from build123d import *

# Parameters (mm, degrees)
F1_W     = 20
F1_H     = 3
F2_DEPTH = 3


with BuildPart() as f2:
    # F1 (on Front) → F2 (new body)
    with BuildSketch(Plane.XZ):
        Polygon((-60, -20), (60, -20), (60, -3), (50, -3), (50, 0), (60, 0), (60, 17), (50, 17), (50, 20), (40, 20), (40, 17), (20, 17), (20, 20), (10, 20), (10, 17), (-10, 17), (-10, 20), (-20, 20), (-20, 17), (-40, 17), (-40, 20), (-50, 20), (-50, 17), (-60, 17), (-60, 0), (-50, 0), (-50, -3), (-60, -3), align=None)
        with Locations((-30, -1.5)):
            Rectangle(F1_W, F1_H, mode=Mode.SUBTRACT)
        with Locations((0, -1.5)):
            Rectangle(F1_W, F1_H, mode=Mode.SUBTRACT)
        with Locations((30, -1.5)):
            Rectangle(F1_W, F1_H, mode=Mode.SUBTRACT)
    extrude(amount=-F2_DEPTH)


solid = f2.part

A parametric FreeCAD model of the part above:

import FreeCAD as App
import Part
import Sketcher

V = App.Vector


def add_polygon(sketch, points):
    """Adds a closed chain of lines whose ends are joined by coincident constraints."""
    first, n = sketch.GeometryCount, len(points)
    for a, b in zip(points, points[1:] + points[:1]):
        sketch.addGeometry(Part.LineSegment(App.Vector(*a, 0), App.Vector(*b, 0)), False)
    for i in range(n):
        sketch.addConstraint(Sketcher.Constraint("Coincident", first + i, 2, first + (i + 1) % n, 1))

doc = App.newDocument("Part")
body = doc.addObject("PartDesign::Body", "Body")

sketch1 = body.newObject("Sketcher::SketchObject", "Sketch")
sketch1.AttachmentSupport = (doc.getObject("XZ_Plane"), [""])
sketch1.MapMode = "FlatFace"
add_polygon(sketch1, [(-60, -20), (60, -20), (60, -3), (50, -3), (50, 0), (60, 0), (60, 17), (50, 17), (50, 20), (40, 20), (40, 17), (20, 17), (20, 20), (10, 20), (10, 17), (-10, 17), (-10, 20), (-20, 20), (-20, 17), (-40, 17), (-40, 20), (-50, 20), (-50, 17), (-60, 17), (-60, 0), (-50, 0), (-50, -3), (-60, -3)])
add_polygon(sketch1, [(-20, -3), (-40, -3), (-40, 0), (-20, 0)])
add_polygon(sketch1, [(10, -3), (-10, -3), (-10, 0), (10, 0)])
add_polygon(sketch1, [(40, -3), (20, -3), (20, 0), (40, 0)])
sketch1.addConstraint([
    Sketcher.Constraint("Horizontal", 0),
    Sketcher.Constraint("Vertical", 1),
    Sketcher.Constraint("Horizontal", 2),
    Sketcher.Constraint("Vertical", 3),
    Sketcher.Constraint("Horizontal", 4),
    Sketcher.Constraint("Vertical", 5),
    Sketcher.Constraint("Horizontal", 6),
    Sketcher.Constraint("Vertical", 7),
    Sketcher.Constraint("Horizontal", 8),
    Sketcher.Constraint("Vertical", 9),
    Sketcher.Constraint("Horizontal", 10),
    Sketcher.Constraint("Vertical", 11),
    Sketcher.Constraint("Horizontal", 12),
    Sketcher.Constraint("Vertical", 13),
    Sketcher.Constraint("Horizontal", 14),
    Sketcher.Constraint("Vertical", 15),
    Sketcher.Constraint("Horizontal", 16),
    Sketcher.Constraint("Vertical", 17),
    Sketcher.Constraint("Horizontal", 18),
    Sketcher.Constraint("Vertical", 19),
    Sketcher.Constraint("Horizontal", 20),
    Sketcher.Constraint("Vertical", 21),
    Sketcher.Constraint("Horizontal", 22),
    Sketcher.Constraint("Vertical", 23),
    Sketcher.Constraint("Horizontal", 24),
    Sketcher.Constraint("Vertical", 25),
    Sketcher.Constraint("Horizontal", 26),
    Sketcher.Constraint("Vertical", 27),
    Sketcher.Constraint("Horizontal", 28),
    Sketcher.Constraint("Vertical", 29),
    Sketcher.Constraint("Horizontal", 30),
    Sketcher.Constraint("Vertical", 31),
    Sketcher.Constraint("Horizontal", 32),
    Sketcher.Constraint("Vertical", 33),
    Sketcher.Constraint("Horizontal", 34),
    Sketcher.Constraint("Vertical", 35),
    Sketcher.Constraint("Horizontal", 36),
    Sketcher.Constraint("Vertical", 37),
    Sketcher.Constraint("Horizontal", 38),
    Sketcher.Constraint("Vertical", 39),
    Sketcher.Constraint("Symmetric", 4, 2, 23, 2, -1, 1),
    Sketcher.Constraint("Symmetric", 33, 2, 34, 2, -1, 1),
    Sketcher.Constraint("Symmetric", 30, 2, 37, 2, -1, 1),
    Sketcher.Constraint("Symmetric", 12, 2, 15, 2, -2),
    Sketcher.Constraint("Symmetric", 10, 2, 17, 2, -2),
    Sketcher.Constraint("Symmetric", 8, 2, 19, 2, -2),
    Sketcher.Constraint("Symmetric", 6, 2, 21, 2, -2),
    Sketcher.Constraint("Symmetric", 3, 2, 24, 2, -2),
    Sketcher.Constraint("Symmetric", 1, 2, 26, 2, -2),
    Sketcher.Constraint("Symmetric", 29, 2, 38, 2, -2),
    Sketcher.Constraint("Horizontal", 6, 2, 9, 2),
    Sketcher.Constraint("Horizontal", 8, 2, 11, 2),
    Sketcher.Constraint("Horizontal", 10, 2, 13, 2),
    Sketcher.Constraint("Horizontal", 26, 2, 28, 2),
    Sketcher.Constraint("Horizontal", 31, 2, 32, 2),
    Sketcher.Constraint("Horizontal", 35, 2, 36, 2),
    Sketcher.Constraint("Vertical", 1, 2, 4, 2),
    Sketcher.Constraint("Vertical", 3, 2, 6, 2),
    Sketcher.Constraint("Vertical", 19, 2, 28, 2),
    Sketcher.Constraint("Vertical", 17, 2, 30, 2),
    Sketcher.Constraint("Vertical", 15, 2, 32, 2),
    Sketcher.Constraint("Equal", 6, 8),
    Sketcher.Constraint("Equal", 8, 12),
    Sketcher.Constraint("Equal", 10, 14),
    Sketcher.Constraint("Equal", 1, 5),
    Sketcher.Constraint("Equal", 3, 7),
    Sketcher.Constraint("DistanceX", 0, 1, 0, 2, 120.0),
    Sketcher.Constraint("DistanceX", 2, 2, 2, 1, 10.0),
    Sketcher.Constraint("DistanceY", 1, 1, 1, 2, 17.0),
    Sketcher.Constraint("DistanceY", 3, 1, 3, 2, 3.0),
])
pad1 = body.newObject("PartDesign::Pad", "Pad")
pad1.Profile = sketch1
pad1.Length = 3
pad1.Reversed = True

doc.recompute()
